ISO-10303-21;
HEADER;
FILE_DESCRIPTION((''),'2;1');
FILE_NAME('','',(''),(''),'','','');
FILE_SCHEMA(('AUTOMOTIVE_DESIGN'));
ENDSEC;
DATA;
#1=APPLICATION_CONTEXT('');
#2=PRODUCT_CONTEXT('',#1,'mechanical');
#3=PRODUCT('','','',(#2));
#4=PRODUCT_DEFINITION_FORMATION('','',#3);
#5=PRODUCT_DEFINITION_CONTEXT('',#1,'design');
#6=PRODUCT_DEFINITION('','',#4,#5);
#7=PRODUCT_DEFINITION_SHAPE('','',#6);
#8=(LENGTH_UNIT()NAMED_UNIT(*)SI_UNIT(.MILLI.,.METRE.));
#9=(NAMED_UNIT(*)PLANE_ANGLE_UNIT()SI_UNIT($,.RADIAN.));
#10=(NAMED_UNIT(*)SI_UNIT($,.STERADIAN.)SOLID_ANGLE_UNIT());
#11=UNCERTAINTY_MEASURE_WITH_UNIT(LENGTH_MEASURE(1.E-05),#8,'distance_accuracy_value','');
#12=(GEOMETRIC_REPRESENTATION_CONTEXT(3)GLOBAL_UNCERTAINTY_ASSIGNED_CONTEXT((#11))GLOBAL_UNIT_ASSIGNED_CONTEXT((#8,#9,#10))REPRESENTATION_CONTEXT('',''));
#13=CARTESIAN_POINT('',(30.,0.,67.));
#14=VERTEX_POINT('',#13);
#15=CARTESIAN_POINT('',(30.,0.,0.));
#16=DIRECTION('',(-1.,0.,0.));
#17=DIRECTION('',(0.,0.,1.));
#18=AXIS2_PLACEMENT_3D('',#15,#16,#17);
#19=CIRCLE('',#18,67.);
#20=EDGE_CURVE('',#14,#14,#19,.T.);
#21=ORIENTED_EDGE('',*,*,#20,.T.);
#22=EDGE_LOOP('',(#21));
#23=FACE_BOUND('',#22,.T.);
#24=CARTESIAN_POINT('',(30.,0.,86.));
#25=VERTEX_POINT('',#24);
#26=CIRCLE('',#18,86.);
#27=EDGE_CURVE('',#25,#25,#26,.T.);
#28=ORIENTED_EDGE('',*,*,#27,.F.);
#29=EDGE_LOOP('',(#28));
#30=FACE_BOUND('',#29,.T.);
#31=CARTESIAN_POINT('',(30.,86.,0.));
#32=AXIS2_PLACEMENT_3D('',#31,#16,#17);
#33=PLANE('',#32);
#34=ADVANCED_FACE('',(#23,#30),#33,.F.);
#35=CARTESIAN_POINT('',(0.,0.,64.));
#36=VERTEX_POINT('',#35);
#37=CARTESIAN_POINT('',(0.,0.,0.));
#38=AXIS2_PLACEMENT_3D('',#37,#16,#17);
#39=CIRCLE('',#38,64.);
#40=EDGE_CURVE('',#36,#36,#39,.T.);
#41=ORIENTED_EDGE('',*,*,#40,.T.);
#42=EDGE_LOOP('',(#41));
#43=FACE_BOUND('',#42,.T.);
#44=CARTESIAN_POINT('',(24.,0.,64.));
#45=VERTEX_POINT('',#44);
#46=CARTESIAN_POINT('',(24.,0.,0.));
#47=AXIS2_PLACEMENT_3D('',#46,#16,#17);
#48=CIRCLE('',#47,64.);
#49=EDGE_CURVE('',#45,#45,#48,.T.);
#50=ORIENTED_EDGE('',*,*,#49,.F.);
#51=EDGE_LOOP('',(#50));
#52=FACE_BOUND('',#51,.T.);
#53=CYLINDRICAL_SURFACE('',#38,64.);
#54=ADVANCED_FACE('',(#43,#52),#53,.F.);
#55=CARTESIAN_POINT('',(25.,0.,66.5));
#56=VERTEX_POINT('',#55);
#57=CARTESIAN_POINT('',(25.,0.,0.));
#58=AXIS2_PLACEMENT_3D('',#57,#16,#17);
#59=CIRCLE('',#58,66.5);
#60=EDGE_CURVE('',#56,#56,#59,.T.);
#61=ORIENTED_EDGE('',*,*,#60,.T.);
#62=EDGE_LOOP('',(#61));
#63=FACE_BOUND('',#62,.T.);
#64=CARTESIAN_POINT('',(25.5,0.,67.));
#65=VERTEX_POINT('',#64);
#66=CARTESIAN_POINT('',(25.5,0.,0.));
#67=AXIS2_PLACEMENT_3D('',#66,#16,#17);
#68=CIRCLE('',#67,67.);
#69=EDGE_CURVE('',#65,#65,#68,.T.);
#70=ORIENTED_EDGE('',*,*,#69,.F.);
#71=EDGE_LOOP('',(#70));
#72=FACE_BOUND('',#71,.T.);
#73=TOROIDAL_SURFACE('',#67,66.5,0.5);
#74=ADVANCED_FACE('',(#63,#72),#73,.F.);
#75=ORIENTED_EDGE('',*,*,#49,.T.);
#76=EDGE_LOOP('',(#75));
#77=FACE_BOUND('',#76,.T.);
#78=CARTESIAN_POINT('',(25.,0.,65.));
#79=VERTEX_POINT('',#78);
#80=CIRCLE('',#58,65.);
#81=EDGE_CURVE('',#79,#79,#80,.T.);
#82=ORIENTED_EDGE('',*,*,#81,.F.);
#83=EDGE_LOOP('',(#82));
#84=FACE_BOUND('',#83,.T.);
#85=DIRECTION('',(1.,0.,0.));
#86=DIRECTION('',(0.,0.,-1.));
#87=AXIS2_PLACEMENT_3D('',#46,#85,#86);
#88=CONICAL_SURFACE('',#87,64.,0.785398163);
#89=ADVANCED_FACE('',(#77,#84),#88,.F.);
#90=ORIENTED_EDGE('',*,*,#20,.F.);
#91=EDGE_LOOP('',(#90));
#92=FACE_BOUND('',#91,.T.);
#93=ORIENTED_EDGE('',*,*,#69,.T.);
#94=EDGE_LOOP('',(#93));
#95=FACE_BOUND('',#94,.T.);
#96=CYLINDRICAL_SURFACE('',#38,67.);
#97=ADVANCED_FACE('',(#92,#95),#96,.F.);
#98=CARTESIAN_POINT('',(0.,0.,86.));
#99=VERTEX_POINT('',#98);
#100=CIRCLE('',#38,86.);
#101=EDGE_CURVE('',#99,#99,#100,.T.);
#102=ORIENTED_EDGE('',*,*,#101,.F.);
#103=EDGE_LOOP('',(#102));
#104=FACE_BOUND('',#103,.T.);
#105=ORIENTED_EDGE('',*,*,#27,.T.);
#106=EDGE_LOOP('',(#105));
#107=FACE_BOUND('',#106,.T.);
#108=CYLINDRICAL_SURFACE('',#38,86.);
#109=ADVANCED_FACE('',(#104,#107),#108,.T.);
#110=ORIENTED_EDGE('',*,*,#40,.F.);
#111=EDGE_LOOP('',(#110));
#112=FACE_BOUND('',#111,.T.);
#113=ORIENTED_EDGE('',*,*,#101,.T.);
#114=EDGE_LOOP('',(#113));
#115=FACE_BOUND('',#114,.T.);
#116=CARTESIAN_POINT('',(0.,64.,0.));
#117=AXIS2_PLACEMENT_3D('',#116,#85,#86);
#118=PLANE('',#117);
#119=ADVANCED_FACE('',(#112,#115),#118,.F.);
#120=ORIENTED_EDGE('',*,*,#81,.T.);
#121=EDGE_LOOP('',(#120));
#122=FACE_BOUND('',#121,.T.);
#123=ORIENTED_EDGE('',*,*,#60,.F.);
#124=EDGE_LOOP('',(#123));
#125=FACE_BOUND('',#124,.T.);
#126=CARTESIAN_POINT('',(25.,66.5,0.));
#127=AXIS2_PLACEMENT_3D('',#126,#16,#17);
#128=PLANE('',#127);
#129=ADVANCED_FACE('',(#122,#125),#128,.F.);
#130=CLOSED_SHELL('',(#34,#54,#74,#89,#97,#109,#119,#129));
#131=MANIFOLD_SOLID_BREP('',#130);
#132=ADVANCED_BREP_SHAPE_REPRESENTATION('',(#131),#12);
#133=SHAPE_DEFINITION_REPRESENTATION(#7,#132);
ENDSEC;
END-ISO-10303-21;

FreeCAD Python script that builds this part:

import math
import FreeCAD as App
import Part
import Sketcher
from FreeCAD import Vector
Q = App.Units.Quantity

doc = App.newDocument("Part")
params = doc.addObject("Spreadsheet::Sheet", "Params")
for row, (alias, value) in enumerate([
    ("sketch1_radius", "0.5 mm"),
    ("sketch1_width", "24 mm"),
    ("sketch1_width2", "30 mm"),
    ("sketch1_height", "22 mm"),
    ("sketch1_height2", "19 mm"),
    ("revolution_angle", "360 deg"),
], start=1):
    params.set(f"A{row}", alias)
    params.set(f"B{row}", "=" + value)
    params.setAlias(f"B{row}", alias)

body = doc.addObject("PartDesign::Body", "Body")

sketch1 = body.newObject("Sketcher::SketchObject", "Sketch")
sketch1.AttachmentSupport = (doc.getObject("XY_Plane"), [""])
sketch1.MapMode = "FlatFace"
sketch1.addGeometry(Part.LineSegment(Vector(0, 86, 0), Vector(0, 64, 0)), False)
sketch1.addGeometry(Part.LineSegment(Vector(0, 64, 0), Vector(24, 64, 0)), False)
sketch1.addGeometry(Part.LineSegment(Vector(24, 64, 0), Vector(25, 65, 0)), False)
sketch1.addGeometry(Part.LineSegment(Vector(25, 65, 0), Vector(25, 66.5, 0)), False)
sketch1.addGeometry(Part.ArcOfCircle(Part.Circle(Vector(25.5, 66.5, 0), Vector(0, 0, 1), 0.5), math.radians(90), math.radians(180)), False)
sketch1.addGeometry(Part.LineSegment(Vector(25.5, 67, 0), Vector(30, 67, 0)), False)
sketch1.addGeometry(Part.LineSegment(Vector(30, 67, 0), Vector(30, 86, 0)), False)
sketch1.addGeometry(Part.LineSegment(Vector(30, 86, 0), Vector(0, 86, 0)), False)
sketch1.addConstraint(Sketcher.Constraint("Coincident", 0, 2, 1, 1))
sketch1.addConstraint(Sketcher.Constraint("Coincident", 1, 2, 2, 1))
sketch1.addConstraint(Sketcher.Constraint("Coincident", 2, 2, 3, 1))
sketch1.addConstraint(Sketcher.Constraint("Tangent", 3, 2, 4, 2))
sketch1.addConstraint(Sketcher.Constraint("Tangent", 4, 1, 5, 1))
sketch1.addConstraint(Sketcher.Constraint("Coincident", 5, 2, 6, 1))
sketch1.addConstraint(Sketcher.Constraint("Coincident", 6, 2, 7, 1))
sketch1.addConstraint(Sketcher.Constraint("Coincident", 7, 2, 0, 1))
sketch1.addConstraint(Sketcher.Constraint("Vertical", 0))
sketch1.addConstraint(Sketcher.Constraint("Horizontal", 1))
sketch1.addConstraint(Sketcher.Constraint("Vertical", 3))
sketch1.addConstraint(Sketcher.Constraint("Horizontal", 5))
sketch1.addConstraint(Sketcher.Constraint("Vertical", 6))
sketch1.addConstraint(Sketcher.Constraint("Horizontal", 7))
sketch1.addConstraint(Sketcher.Constraint("PointOnObject", 0, 2, -2))
sketch1.addConstraint(Sketcher.Constraint("Radius", 4, 0.5))
sketch1.addConstraint(Sketcher.Constraint("DistanceX", 1, 1, 1, 2, 24.0))
sketch1.addConstraint(Sketcher.Constraint("DistanceX", 7, 2, 7, 1, 30.0))
sketch1.addConstraint(Sketcher.Constraint("DistanceY", 0, 2, 0, 1, 22.0))
sketch1.addConstraint(Sketcher.Constraint("DistanceY", 6, 1, 6, 2, 19.0))
sketch1.addConstraint(Sketcher.Constraint("Angle", 2, Q("45 deg")))
sketch1.addConstraint(Sketcher.Constraint("DistanceX", 5, 1, 5, 2, 4.5))
sketch1.addConstraint(Sketcher.Constraint("DistanceY", -1, 1, 0, 2, 64.0))
sketch1.setExpression("Constraints[15]", "Params.sketch1_radius")
sketch1.setExpression("Constraints[16]", "Params.sketch1_width")
sketch1.setExpression("Constraints[17]", "Params.sketch1_width2")
sketch1.setExpression("Constraints[18]", "Params.sketch1_height")
sketch1.setExpression("Constraints[19]", "Params.sketch1_height2")
revolution = body.newObject("PartDesign::Revolution", "Revolution")
revolution.Profile = sketch1
revolution.ReferenceAxis = (sketch1, ["H_Axis"])
revolution.setExpression("Angle", "Params.revolution_angle")

doc.recompute()
